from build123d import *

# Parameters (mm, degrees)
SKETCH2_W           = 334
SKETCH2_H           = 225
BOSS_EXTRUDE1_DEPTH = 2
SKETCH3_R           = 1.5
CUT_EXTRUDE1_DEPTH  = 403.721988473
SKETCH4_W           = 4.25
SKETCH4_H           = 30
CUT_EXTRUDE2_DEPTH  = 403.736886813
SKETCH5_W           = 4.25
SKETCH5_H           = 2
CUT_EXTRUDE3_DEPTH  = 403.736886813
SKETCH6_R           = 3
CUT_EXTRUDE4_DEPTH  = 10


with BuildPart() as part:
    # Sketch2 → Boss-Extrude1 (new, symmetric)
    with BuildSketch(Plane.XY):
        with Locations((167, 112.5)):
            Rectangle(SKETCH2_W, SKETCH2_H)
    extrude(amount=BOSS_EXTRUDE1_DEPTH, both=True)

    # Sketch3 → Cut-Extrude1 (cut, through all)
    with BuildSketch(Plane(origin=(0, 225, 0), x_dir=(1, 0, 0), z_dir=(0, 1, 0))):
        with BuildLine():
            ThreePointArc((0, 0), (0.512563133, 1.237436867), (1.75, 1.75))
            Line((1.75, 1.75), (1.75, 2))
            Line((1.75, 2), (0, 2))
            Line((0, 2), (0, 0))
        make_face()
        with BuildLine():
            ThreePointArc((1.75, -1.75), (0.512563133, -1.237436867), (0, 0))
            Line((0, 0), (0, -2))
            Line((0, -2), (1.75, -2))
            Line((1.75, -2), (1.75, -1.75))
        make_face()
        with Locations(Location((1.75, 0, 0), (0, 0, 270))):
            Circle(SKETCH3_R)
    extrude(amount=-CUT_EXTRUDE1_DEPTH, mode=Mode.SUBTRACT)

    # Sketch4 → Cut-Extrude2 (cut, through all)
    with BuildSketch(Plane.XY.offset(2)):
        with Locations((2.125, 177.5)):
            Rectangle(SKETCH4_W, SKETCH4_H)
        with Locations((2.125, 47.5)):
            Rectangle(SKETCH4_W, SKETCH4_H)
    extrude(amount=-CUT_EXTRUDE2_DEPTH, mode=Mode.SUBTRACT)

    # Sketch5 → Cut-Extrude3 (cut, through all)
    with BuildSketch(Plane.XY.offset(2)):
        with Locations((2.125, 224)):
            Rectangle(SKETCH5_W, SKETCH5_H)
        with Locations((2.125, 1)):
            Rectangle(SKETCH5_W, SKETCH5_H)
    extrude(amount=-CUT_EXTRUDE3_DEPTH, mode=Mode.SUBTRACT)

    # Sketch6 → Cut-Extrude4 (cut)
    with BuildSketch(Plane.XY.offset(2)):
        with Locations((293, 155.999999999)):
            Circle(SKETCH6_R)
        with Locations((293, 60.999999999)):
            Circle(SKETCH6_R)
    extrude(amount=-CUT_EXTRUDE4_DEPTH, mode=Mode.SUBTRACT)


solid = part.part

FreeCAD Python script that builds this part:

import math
import FreeCAD as App
import Part
import Sketcher


def add_polygon(sketch, points):
    """Adds a closed chain of lines whose ends are joined by coincident constraints."""
    first, n = sketch.GeometryCount, len(points)
    for a, b in zip(points, points[1:] + points[:1]):
        sketch.addGeometry(Part.LineSegment(App.Vector(*a, 0), App.Vector(*b, 0)), False)
    for i in range(n):
        sketch.addConstraint(Sketcher.Constraint("Coincident", first + i, 2, first + (i + 1) % n, 1))

doc = App.newDocument("Part")
body = doc.addObject("PartDesign::Body", "Body")

# Sketch on XY plane
sketch1 = doc.addObject("Sketcher::SketchObject", "Sketch")
body.addObject(sketch1)
sketch1.AttachmentSupport = (doc.XY_Plane, [""])
sketch1.MapMode = "FlatFace"
add_polygon(sketch1, [(0, 225), (0, 0), (334, 0), (334, 225)])  # lines 0-3
sketch1.addConstraint([
    Sketcher.Constraint("Vertical", 0),
    Sketcher.Constraint("Horizontal", 1),
    Sketcher.Constraint("Vertical", 2),
    Sketcher.Constraint("Horizontal", 3),
    Sketcher.Constraint("Coincident", 0, 2, -1, 1),
    Sketcher.Constraint("DistanceX", 1, 1, 1, 2, 334.0),
    Sketcher.Constraint("DistanceY", 0, 2, 0, 1, 225.0),
])
pad1 = doc.addObject("PartDesign::Pad", "Pad")
body.addObject(pad1)
pad1.Profile = sketch1
pad1.Length = 4
pad1.Midplane = True

# Sketch on XZ plane
sketch2 = doc.addObject("Sketcher::SketchObject", "Sketch001")
body.addObject(sketch2)
sketch2.AttachmentSupport = (doc.XZ_Plane, [""])
sketch2.MapMode = "FlatFace"
sketch2.AttachmentOffset = App.Placement(App.Vector(0, 0, -225), App.Rotation())
sketch2.addGeometry([
    Part.ArcOfCircle(Part.Circle(App.Vector(1.75, 0, 0), App.Vector(0, 0, 1), 1.75), math.radians(180), math.radians(270)),  # 0
    Part.LineSegment(App.Vector(1.75, -1.75, 0), App.Vector(1.75, -2, 0)),  # 1
    Part.LineSegment(App.Vector(1.75, -2, 0), App.Vector(0, -2, 0)),  # 2
    Part.LineSegment(App.Vector(0, -2, 0), App.Vector(0, 0, 0)),  # 3
    Part.ArcOfCircle(Part.Circle(App.Vector(1.75, 0, 0), App.Vector(0, 0, 1), 1.75), math.radians(90), math.radians(180)),  # 4
    Part.LineSegment(App.Vector(0, 0, 0), App.Vector(0, 2, 0)),  # 5
    Part.LineSegment(App.Vector(0, 2, 0), App.Vector(1.75, 2, 0)),  # 6
    Part.LineSegment(App.Vector(1.75, 2, 0), App.Vector(1.75, 1.75, 0)),  # 7
    Part.Circle(App.Vector(1.75, 0, 0), App.Vector(0, 0, 1), 1.5),  # 8
], False)
sketch2.addConstraint([
    Sketcher.Constraint("Coincident", 0, 2, 1, 1),
    Sketcher.Constraint("Coincident", 1, 2, 2, 1),
    Sketcher.Constraint("Coincident", 2, 2, 3, 1),
    Sketcher.Constraint("Tangent", 3, 2, 0, 1),
    Sketcher.Constraint("Tangent", 4, 2, 5, 1),
    Sketcher.Constraint("Coincident", 5, 2, 6, 1),
    Sketcher.Constraint("Coincident", 6, 2, 7, 1),
    Sketcher.Constraint("Coincident", 7, 2, 4, 1),
    Sketcher.Constraint("Vertical", 1),
    Sketcher.Constraint("Horizontal", 2),
    Sketcher.Constraint("Vertical", 3),
    Sketcher.Constraint("Vertical", 5),
    Sketcher.Constraint("Horizontal", 6),
    Sketcher.Constraint("Vertical", 7),
    Sketcher.Constraint("Coincident", 3, 2, -1, 1),
    Sketcher.Constraint("Coincident", 4, 2, -1, 1),
    Sketcher.Constraint("Coincident", 8, 3, 0, 3),
    Sketcher.Constraint("Equal", 0, 4),
    Sketcher.Constraint("Symmetric", 1, 2, 6, 2, -1),
    Sketcher.Constraint("Vertical", 8, 3, 0, 2),
    Sketcher.Constraint("Diameter", 8, 3.0),
    Sketcher.Constraint("DistanceY", 3, 1, 3, 2, 2.0),
    Sketcher.Constraint("Radius", 0, 1.75),
])
pocket1 = doc.addObject("PartDesign::Pocket", "Pocket")
body.addObject(pocket1)
pocket1.Profile = sketch2
pocket1.Type = "ThroughAll"
pocket1.Reversed = True

# Sketch on XY plane
sketch3 = doc.addObject("Sketcher::SketchObject", "Sketch002")
body.addObject(sketch3)
sketch3.AttachmentSupport = (doc.XY_Plane, [""])
sketch3.MapMode = "FlatFace"
sketch3.AttachmentOffset = App.Placement(App.Vector(0, 0, 2), App.Rotation())
add_polygon(sketch3, [(0, 192.5), (0, 162.5), (4.2, 162.5), (4.2, 192.5)])  # lines 0-3
add_polygon(sketch3, [(0, 62.5), (0, 32.5), (4.2, 32.5), (4.2, 62.5)])  # lines 4-7
sketch3.addConstraint([
    Sketcher.Constraint("Vertical", 0),
    Sketcher.Constraint("Horizontal", 1),
    Sketcher.Constraint("Vertical", 2),
    Sketcher.Constraint("Horizontal", 3),
    Sketcher.Constraint("Vertical", 4),
    Sketcher.Constraint("Horizontal", 5),
    Sketcher.Constraint("Vertical", 6),
    Sketcher.Constraint("Horizontal", 7),
    Sketcher.Constraint("PointOnObject", 0, 2, -2),
    Sketcher.Constraint("PointOnObject", 4, 2, -2),
    Sketcher.Constraint("Vertical", 2, 2, 5, 2),
    Sketcher.Constraint("Equal", 2, 4),
    Sketcher.Constraint("DistanceY", 0, 2, 0, 1, 30.0),
    Sketcher.Constraint("DistanceY", 4, 2, 0, 2, 130.0),
    Sketcher.Constraint("DistanceX", 1, 1, 1, 2, 4.25),
    Sketcher.Constraint("DistanceY", -1, 1, 0, 2, 162.5),
])
pocket2 = doc.addObject("PartDesign::Pocket", "Pocket001")
body.addObject(pocket2)
pocket2.Profile = sketch3
pocket2.Type = "ThroughAll"

# Sketch on XY plane
sketch4 = doc.addObject("Sketcher::SketchObject", "Sketch003")
body.addObject(sketch4)
sketch4.AttachmentSupport = (doc.XY_Plane, [""])
sketch4.MapMode = "FlatFace"
sketch4.AttachmentOffset = App.Placement(App.Vector(0, 0, 2), App.Rotation())
add_polygon(sketch4, [(0, 225), (0, 223), (4.2, 223), (4.2, 225)])  # lines 0-3
add_polygon(sketch4, [(0, 2), (0, 0), (4.2, 0), (4.2, 2)])  # lines 4-7
sketch4.addConstraint([
    Sketcher.Constraint("Vertical", 0),
    Sketcher.Constraint("Horizontal", 1),
    Sketcher.Constraint("Vertical", 2),
    Sketcher.Constraint("Horizontal", 3),
    Sketcher.Constraint("Vertical", 4),
    Sketcher.Constraint("Horizontal", 5),
    Sketcher.Constraint("Vertical", 6),
    Sketcher.Constraint("Horizontal", 7),
    Sketcher.Constraint("Coincident", 4, 2, -1, 1),
    Sketcher.Constraint("PointOnObject", 0, 2, -2),
    Sketcher.Constraint("Vertical", 2, 2, 5, 2),
    Sketcher.Constraint("Equal", 2, 4),
    Sketcher.Constraint("DistanceY", 0, 2, 0, 1, 2.0),
    Sketcher.Constraint("DistanceY", -1, 1, 0, 2, 223.0),
    Sketcher.Constraint("DistanceX", 1, 1, 1, 2, 4.25),
])
pocket3 = doc.addObject("PartDesign::Pocket", "Pocket002")
body.addObject(pocket3)
pocket3.Profile = sketch4
pocket3.Type = "ThroughAll"

# Sketch on XY plane
sketch5 = doc.addObject("Sketcher::SketchObject", "Sketch004")
body.addObject(sketch5)
sketch5.AttachmentSupport = (doc.XY_Plane, [""])
sketch5.MapMode = "FlatFace"
sketch5.AttachmentOffset = App.Placement(App.Vector(0, 0, 2), App.Rotation())
sketch5.addGeometry([
    Part.Circle(App.Vector(293, 156, 0), App.Vector(0, 0, 1), 3),
    Part.Circle(App.Vector(293, 61, 0), App.Vector(0, 0, 1), 3),
], False)
sketch5.addConstraint([
    Sketcher.Constraint("Equal", 0, 1),
    Sketcher.Constraint("Vertical", 0, 3, 1, 3),
    Sketcher.Constraint("Diameter", 0, 6.0),
    Sketcher.Constraint("DistanceX", -1, 1, 0, 3, 293.0),
    Sketcher.Constraint("DistanceY", -1, 1, 0, 3, 156.0),
    Sketcher.Constraint("DistanceY", -1, 1, 1, 3, 61.0),
])
pocket4 = doc.addObject("PartDesign::Pocket", "Pocket003")
body.addObject(pocket4)
pocket4.Profile = sketch5
pocket4.Length = 10

doc.recompute()
